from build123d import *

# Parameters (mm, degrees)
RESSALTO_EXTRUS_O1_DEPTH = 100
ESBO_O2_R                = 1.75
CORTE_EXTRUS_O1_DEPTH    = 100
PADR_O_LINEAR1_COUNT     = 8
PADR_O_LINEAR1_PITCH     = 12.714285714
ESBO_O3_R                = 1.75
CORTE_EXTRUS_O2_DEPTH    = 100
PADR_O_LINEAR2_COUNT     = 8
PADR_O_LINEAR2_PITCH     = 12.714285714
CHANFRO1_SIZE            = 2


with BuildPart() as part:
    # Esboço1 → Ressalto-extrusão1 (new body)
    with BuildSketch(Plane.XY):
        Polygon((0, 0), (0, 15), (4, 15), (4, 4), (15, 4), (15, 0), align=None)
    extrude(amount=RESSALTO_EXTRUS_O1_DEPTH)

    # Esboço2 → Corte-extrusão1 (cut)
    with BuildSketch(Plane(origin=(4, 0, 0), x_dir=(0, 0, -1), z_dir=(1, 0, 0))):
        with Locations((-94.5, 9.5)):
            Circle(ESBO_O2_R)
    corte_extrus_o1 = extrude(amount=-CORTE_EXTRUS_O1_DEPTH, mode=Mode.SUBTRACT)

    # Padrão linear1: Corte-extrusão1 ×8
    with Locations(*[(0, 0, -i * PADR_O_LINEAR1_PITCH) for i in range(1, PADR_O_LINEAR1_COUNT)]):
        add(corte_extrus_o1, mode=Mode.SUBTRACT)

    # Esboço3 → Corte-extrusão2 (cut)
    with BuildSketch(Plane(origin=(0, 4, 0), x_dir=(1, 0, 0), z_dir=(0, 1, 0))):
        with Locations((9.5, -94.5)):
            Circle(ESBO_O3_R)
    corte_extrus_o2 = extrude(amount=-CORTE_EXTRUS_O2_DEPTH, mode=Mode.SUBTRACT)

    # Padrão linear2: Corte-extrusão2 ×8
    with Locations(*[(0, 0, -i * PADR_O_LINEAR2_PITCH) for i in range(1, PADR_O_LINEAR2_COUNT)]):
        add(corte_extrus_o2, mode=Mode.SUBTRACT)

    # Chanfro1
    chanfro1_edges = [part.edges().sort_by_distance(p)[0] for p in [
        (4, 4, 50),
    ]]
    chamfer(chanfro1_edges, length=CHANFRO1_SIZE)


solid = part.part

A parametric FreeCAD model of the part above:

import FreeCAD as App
import Part
import Sketcher


def edges_at(feature, points):
    """Names of the edges that pass closest to the given points."""
    edges = feature.Shape.Edges
    near = lambda p: min(range(len(edges)), key=lambda i: edges[i].distToShape(Part.Vertex(*p))[0])
    return sorted({f"Edge{near(p) + 1}" for p in points})


def add_polygon(sketch, points):
    """Adds a closed chain of lines whose ends are joined by coincident constraints."""
    first, n = sketch.GeometryCount, len(points)
    for a, b in zip(points, points[1:] + points[:1]):
        sketch.addGeometry(Part.LineSegment(App.Vector(*a, 0), App.Vector(*b, 0)), False)
    for i in range(n):
        sketch.addConstraint(Sketcher.Constraint("Coincident", first + i, 2, first + (i + 1) % n, 1))

doc = App.newDocument("Part")
body = doc.addObject("PartDesign::Body", "Body")

sketch1 = body.newObject("Sketcher::SketchObject", "Sketch")
sketch1.AttachmentSupport = (doc.getObject("XY_Plane"), [""])
sketch1.MapMode = "FlatFace"
add_polygon(sketch1, [(0, 15), (0, 0), (15, 0), (15, 4), (4, 4), (4, 15)])
sketch1.addConstraint(Sketcher.Constraint("Vertical", 0))
sketch1.addConstraint(Sketcher.Constraint("Horizontal", 1))
sketch1.addConstraint(Sketcher.Constraint("Vertical", 2))
sketch1.addConstraint(Sketcher.Constraint("Horizontal", 3))
sketch1.addConstraint(Sketcher.Constraint("Vertical", 4))
sketch1.addConstraint(Sketcher.Constraint("Horizontal", 5))
sketch1.addConstraint(Sketcher.Constraint("Coincident", 0, 2, -1, 1))
sketch1.addConstraint(Sketcher.Constraint("Equal", 1, 0))
sketch1.addConstraint(Sketcher.Constraint("Equal", 5, 2))
sketch1.addConstraint(Sketcher.Constraint("DistanceX", 1, 1, 1, 2, 15.0))
sketch1.addConstraint(Sketcher.Constraint("DistanceX", 3, 2, 3, 1, 11.0))
pad1 = body.newObject("PartDesign::Pad", "Pad")
pad1.Profile = sketch1
pad1.Length = 100

sketch2 = body.newObject("Sketcher::SketchObject", "Sketch001")
sketch2.AttachmentSupport = (doc.getObject("YZ_Plane"), [""])
sketch2.MapMode = "FlatFace"
sketch2.AttachmentOffset = App.Placement(App.Vector(0, 0, 4), App.Rotation())
sketch2.addGeometry(Part.Circle(App.Vector(9.5, 94.5, 0), App.Vector(0, 0, 1), 1.75), False)
sketch2.addConstraint(Sketcher.Constraint("Diameter", 0, 3.5))
sketch2.addConstraint(Sketcher.Constraint("DistanceX", -1, 1, 0, 3, 9.5))
sketch2.addConstraint(Sketcher.Constraint("DistanceY", -1, 1, 0, 3, 94.5))
pocket1 = body.newObject("PartDesign::Pocket", "Pocket")
pocket1.Profile = sketch2
pocket1.Length = 100
doc.recompute()

linearpattern = body.newObject("PartDesign::LinearPattern", "LinearPattern")
linearpattern.Originals = [pocket1]
linearpattern.Direction = (doc.getObject("Z_Axis"), [""])
linearpattern.Mode = "offset"
linearpattern.Offset = 12.714286
linearpattern.Occurrences = 8
linearpattern.Reversed = True
body.Tip = linearpattern

sketch3 = body.newObject("Sketcher::SketchObject", "Sketch002")
sketch3.AttachmentSupport = (doc.getObject("XZ_Plane"), [""])
sketch3.MapMode = "FlatFace"
sketch3.AttachmentOffset = App.Placement(App.Vector(0, 0, -4), App.Rotation())
sketch3.addGeometry(Part.Circle(App.Vector(9.5, 94.5, 0), App.Vector(0, 0, 1), 1.75), False)
sketch3.addConstraint(Sketcher.Constraint("Diameter", 0, 3.5))
sketch3.addConstraint(Sketcher.Constraint("DistanceX", -1, 1, 0, 3, 9.5))
sketch3.addConstraint(Sketcher.Constraint("DistanceY", -1, 1, 0, 3, 94.5))
pocket2 = body.newObject("PartDesign::Pocket", "Pocket001")
pocket2.Profile = sketch3
pocket2.Length = 100
pocket2.Reversed = True
doc.recompute()

linearpattern2 = body.newObject("PartDesign::LinearPattern", "LinearPattern001")
linearpattern2.Originals = [pocket2]
linearpattern2.Direction = (doc.getObject("Z_Axis"), [""])
linearpattern2.Mode = "offset"
linearpattern2.Offset = 12.714286
linearpattern2.Occurrences = 8
linearpattern2.Reversed = True
body.Tip = linearpattern2
doc.recompute()

chamfer = body.newObject("PartDesign::Chamfer", "Chamfer")
chamfer.Base = (linearpattern2, edges_at(linearpattern2, [(4, 4, 50)]))
chamfer.Size = 2

doc.recompute()
